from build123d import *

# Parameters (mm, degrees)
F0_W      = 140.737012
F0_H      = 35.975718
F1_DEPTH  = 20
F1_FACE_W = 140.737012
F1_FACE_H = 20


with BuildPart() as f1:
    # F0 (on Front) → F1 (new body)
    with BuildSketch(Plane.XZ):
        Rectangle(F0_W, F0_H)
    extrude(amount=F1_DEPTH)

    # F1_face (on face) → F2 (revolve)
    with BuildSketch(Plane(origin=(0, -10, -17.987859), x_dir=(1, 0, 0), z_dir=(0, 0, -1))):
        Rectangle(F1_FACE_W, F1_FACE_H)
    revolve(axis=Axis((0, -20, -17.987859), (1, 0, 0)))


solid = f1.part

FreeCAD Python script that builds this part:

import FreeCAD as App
import Part
import Sketcher
from FreeCAD import Vector

doc = App.newDocument("Part")
params = doc.addObject("Spreadsheet::Sheet", "Params")
for row, (alias, value) in enumerate([
    ("pad1_length", "20 mm"),
    ("sketch2_height", "20 mm"),
    ("revolution_angle", "360 deg"),
], start=1):
    params.set(f"A{row}", alias)
    params.set(f"B{row}", "=" + value)
    params.setAlias(f"B{row}", alias)

body = doc.addObject("PartDesign::Body", "Body")

# Sketch on XZ plane
sketch1 = doc.addObject("Sketcher::SketchObject", "Sketch")
body.addObject(sketch1)
sketch1.AttachmentSupport = (doc.XZ_Plane, [""])
sketch1.MapMode = "FlatFace"
sketch1.addGeometry(Part.LineSegment(Vector(-70, 18, 0), Vector(-70, -18, 0)), False)
sketch1.addGeometry(Part.LineSegment(Vector(-70, -18, 0), Vector(70, -18, 0)), False)
sketch1.addGeometry(Part.LineSegment(Vector(70, -18, 0), Vector(70, 18, 0)), False)
sketch1.addGeometry(Part.LineSegment(Vector(70, 18, 0), Vector(-70, 18, 0)), False)
sketch1.addConstraint(Sketcher.Constraint("Coincident", 0, 2, 1, 1))
sketch1.addConstraint(Sketcher.Constraint("Coincident", 1, 2, 2, 1))
sketch1.addConstraint(Sketcher.Constraint("Coincident", 2, 2, 3, 1))
sketch1.addConstraint(Sketcher.Constraint("Coincident", 3, 2, 0, 1))
sketch1.addConstraint(Sketcher.Constraint("Vertical", 0))
sketch1.addConstraint(Sketcher.Constraint("Horizontal", 1))
sketch1.addConstraint(Sketcher.Constraint("Vertical", 2))
sketch1.addConstraint(Sketcher.Constraint("Horizontal", 3))
sketch1.addConstraint(Sketcher.Constraint("Symmetric", 0, 2, 2, 2, -1, 1))
sketch1.addConstraint(Sketcher.Constraint("DistanceX", 1, 1, 1, 2, 140.737012))
sketch1.addConstraint(Sketcher.Constraint("DistanceY", 0, 2, 0, 1, 35.975718))
pad1 = doc.addObject("PartDesign::Pad", "Pad")
body.addObject(pad1)
pad1.Profile = sketch1
pad1.setExpression("Length", "Params.pad1_length")

# Sketch on XY plane
sketch2 = doc.addObject("Sketcher::SketchObject", "Sketch001")
body.addObject(sketch2)
sketch2.AttachmentSupport = (doc.XY_Plane, [""])
sketch2.MapMode = "FlatFace"
sketch2.AttachmentOffset = App.Placement(Vector(0, 0, -17.987859), App.Rotation())
sketch2.addGeometry(Part.LineSegment(Vector(-70, -20, 0), Vector(-70, 0, 0)), False)
sketch2.addGeometry(Part.LineSegment(Vector(-70, 0, 0), Vector(70, 0, 0)), False)
sketch2.addGeometry(Part.LineSegment(Vector(70, 0, 0), Vector(70, -20, 0)), False)
sketch2.addGeometry(Part.LineSegment(Vector(70, -20, 0), Vector(-70, -20, 0)), False)
sketch2.addGeometry(Part.LineSegment(Vector(-70, -20, 0), Vector(70, -20, 0)), True)  # axis
sketch2.addConstraint(Sketcher.Constraint("Coincident", 0, 2, 1, 1))
sketch2.addConstraint(Sketcher.Constraint("Coincident", 1, 2, 2, 1))
sketch2.addConstraint(Sketcher.Constraint("Coincident", 2, 2, 3, 1))
sketch2.addConstraint(Sketcher.Constraint("Coincident", 3, 2, 0, 1))
sketch2.addConstraint(Sketcher.Constraint("Vertical", 0))
sketch2.addConstraint(Sketcher.Constraint("Horizontal", 1))
sketch2.addConstraint(Sketcher.Constraint("Vertical", 2))
sketch2.addConstraint(Sketcher.Constraint("Horizontal", 3))
sketch2.addConstraint(Sketcher.Constraint("Horizontal", 4))
sketch2.addConstraint(Sketcher.Constraint("Coincident", 4, 1, 3, 2))
sketch2.addConstraint(Sketcher.Constraint("Symmetric", 0, 2, 1, 2, -1, 1))
sketch2.addConstraint(Sketcher.Constraint("Vertical", 1, 2, 4, 2))
sketch2.addConstraint(Sketcher.Constraint("DistanceY", 0, 1, 0, 2, 20.0))
sketch2.addConstraint(Sketcher.Constraint("DistanceX", 1, 1, 1, 2, 140.737012))
sketch2.setExpression("Constraints[12]", "Params.sketch2_height")
revolution = doc.addObject("PartDesign::Revolution", "Revolution")
body.addObject(revolution)
revolution.Profile = sketch2
revolution.ReferenceAxis = (sketch2, ["Axis0"])
revolution.setExpression("Angle", "Params.revolution_angle")

doc.recompute()
